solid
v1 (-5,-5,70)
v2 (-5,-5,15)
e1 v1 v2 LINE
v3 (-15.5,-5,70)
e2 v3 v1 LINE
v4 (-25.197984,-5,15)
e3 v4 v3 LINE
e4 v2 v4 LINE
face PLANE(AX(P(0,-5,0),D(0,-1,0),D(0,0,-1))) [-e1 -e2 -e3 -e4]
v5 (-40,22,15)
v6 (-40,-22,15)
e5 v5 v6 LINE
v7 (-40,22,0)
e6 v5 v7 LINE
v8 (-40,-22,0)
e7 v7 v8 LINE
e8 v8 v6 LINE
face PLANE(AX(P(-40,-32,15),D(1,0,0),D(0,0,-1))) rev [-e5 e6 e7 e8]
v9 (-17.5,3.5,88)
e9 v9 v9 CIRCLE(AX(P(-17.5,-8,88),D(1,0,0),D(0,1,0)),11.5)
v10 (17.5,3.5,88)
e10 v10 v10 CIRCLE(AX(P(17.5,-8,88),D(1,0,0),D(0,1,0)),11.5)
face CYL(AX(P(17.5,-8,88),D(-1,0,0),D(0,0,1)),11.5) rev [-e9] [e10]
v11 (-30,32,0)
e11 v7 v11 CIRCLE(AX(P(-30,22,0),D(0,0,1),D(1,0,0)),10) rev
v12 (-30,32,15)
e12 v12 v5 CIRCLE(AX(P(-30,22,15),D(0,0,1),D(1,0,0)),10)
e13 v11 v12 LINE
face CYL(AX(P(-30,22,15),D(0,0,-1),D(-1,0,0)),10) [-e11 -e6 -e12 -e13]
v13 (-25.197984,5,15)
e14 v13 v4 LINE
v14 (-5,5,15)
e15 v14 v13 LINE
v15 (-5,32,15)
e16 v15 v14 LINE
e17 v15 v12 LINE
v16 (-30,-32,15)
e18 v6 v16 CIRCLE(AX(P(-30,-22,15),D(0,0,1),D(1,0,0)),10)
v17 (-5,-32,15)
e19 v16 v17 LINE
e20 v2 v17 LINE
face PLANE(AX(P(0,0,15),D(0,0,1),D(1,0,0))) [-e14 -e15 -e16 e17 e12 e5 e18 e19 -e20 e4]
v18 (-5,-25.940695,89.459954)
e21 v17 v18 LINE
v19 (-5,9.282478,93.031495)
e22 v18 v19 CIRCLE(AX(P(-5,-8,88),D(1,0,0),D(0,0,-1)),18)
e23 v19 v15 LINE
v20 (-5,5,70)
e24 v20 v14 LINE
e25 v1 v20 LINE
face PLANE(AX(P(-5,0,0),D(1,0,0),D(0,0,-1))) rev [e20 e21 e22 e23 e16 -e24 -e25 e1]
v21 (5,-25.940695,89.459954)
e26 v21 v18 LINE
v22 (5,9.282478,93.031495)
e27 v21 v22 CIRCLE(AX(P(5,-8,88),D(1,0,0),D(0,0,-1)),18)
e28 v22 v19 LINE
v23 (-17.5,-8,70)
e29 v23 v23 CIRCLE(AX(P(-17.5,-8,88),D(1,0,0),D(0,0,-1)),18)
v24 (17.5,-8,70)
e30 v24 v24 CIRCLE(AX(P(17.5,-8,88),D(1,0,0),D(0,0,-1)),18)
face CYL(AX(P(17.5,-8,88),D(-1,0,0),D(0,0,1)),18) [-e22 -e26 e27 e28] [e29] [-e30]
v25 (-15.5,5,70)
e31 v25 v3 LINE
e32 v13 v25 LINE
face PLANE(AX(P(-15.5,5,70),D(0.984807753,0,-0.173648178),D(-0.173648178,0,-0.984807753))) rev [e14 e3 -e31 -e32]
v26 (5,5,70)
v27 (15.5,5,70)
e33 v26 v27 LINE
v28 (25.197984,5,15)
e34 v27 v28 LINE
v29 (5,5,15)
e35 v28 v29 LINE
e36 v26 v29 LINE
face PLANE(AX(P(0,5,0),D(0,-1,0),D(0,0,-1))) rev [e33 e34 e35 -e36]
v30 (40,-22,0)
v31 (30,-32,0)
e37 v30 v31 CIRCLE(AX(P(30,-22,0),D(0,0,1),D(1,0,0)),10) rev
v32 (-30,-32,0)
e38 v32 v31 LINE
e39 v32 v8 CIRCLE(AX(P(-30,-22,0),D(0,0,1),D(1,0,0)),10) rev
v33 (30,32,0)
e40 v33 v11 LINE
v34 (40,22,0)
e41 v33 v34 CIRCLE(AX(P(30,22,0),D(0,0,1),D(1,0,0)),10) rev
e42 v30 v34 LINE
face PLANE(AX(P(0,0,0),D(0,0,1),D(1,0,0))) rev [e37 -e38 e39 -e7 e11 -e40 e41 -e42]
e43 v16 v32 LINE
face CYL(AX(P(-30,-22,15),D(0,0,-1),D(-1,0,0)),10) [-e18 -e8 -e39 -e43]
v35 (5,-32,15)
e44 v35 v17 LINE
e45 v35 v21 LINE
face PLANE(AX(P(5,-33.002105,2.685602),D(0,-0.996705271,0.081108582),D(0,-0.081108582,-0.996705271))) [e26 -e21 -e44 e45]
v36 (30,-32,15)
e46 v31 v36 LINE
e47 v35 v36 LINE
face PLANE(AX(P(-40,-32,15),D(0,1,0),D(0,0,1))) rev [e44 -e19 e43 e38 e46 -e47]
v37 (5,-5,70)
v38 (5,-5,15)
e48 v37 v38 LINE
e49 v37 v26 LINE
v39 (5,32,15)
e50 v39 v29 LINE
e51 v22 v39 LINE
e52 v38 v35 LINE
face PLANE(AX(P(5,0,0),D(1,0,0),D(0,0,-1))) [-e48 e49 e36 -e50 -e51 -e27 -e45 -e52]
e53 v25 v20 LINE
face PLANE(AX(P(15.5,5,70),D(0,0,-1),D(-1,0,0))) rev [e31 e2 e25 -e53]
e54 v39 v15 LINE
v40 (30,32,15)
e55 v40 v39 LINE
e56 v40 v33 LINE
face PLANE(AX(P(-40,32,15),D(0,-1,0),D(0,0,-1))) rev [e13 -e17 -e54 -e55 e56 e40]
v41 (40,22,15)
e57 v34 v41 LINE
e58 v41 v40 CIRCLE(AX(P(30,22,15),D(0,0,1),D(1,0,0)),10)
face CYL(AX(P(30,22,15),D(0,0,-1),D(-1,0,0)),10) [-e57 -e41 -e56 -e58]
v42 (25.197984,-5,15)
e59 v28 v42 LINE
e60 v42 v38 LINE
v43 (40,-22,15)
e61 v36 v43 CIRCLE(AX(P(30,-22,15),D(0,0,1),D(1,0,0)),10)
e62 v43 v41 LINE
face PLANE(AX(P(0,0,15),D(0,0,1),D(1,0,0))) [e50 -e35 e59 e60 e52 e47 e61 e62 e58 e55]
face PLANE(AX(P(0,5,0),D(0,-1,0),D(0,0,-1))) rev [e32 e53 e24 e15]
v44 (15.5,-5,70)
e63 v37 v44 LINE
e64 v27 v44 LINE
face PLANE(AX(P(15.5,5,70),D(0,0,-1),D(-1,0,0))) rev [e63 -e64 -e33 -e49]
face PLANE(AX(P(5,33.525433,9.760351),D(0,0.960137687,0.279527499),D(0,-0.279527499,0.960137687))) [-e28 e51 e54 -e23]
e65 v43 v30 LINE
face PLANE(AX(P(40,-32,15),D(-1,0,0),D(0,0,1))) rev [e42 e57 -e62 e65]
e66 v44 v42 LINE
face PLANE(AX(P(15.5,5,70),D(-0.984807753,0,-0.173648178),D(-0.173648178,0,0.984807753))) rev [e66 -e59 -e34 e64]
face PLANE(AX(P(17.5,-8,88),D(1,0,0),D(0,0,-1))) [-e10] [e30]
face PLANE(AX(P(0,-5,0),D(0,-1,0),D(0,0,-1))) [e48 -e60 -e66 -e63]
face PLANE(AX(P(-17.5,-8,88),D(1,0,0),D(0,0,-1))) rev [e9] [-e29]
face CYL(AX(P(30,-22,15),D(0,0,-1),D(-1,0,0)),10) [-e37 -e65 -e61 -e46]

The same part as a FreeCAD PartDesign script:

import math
import FreeCAD as App
import Part
import Sketcher
from FreeCAD import Vector
Q = App.Units.Quantity


def edges_at(feature, points):
    """Names of the edges that pass closest to the given points."""
    edges = feature.Shape.Edges
    near = lambda p: min(range(len(edges)), key=lambda i: edges[i].distToShape(Part.Vertex(*p))[0])
    return sorted({f"Edge{near(p) + 1}" for p in points})

doc = App.newDocument("Part")
body = doc.addObject("PartDesign::Body", "Body")

sketch1 = doc.addObject("Sketcher::SketchObject", "Sketch")
body.addObject(sketch1)
sketch1.AttachmentSupport = (doc.XY_Plane, [""])
sketch1.MapMode = "FlatFace"
sketch1.addGeometry(Part.LineSegment(Vector(-40, -32, 0), Vector(40, -32, 0)), False)
sketch1.addGeometry(Part.LineSegment(Vector(40, -32, 0), Vector(40, 32, 0)), False)
sketch1.addGeometry(Part.LineSegment(Vector(40, 32, 0), Vector(-40, 32, 0)), False)
sketch1.addGeometry(Part.LineSegment(Vector(-40, 32, 0), Vector(-40, -32, 0)), False)
sketch1.addConstraint(Sketcher.Constraint("Coincident", 0, 2, 1, 1))
sketch1.addConstraint(Sketcher.Constraint("Coincident", 1, 2, 2, 1))
sketch1.addConstraint(Sketcher.Constraint("Coincident", 2, 2, 3, 1))
sketch1.addConstraint(Sketcher.Constraint("Coincident", 3, 2, 0, 1))
sketch1.addConstraint(Sketcher.Constraint("Horizontal", 0))
sketch1.addConstraint(Sketcher.Constraint("Vertical", 1))
sketch1.addConstraint(Sketcher.Constraint("Horizontal", 2))
sketch1.addConstraint(Sketcher.Constraint("Vertical", 3))
sketch1.addConstraint(Sketcher.Constraint("Symmetric", 0, 2, 2, 2, -1, 1))
sketch1.addConstraint(Sketcher.Constraint("DistanceX", 0, 1, 0, 2, Q("80 mm")))
sketch1.addConstraint(Sketcher.Constraint("DistanceY", 1, 1, 1, 2, Q("64 mm")))
pad1 = doc.addObject("PartDesign::Pad", "Pad")
body.addObject(pad1)
pad1.Profile = sketch1
pad1.Length = 15
doc.recompute()

fillet = doc.addObject("PartDesign::Fillet", "Fillet")
body.addObject(fillet)
fillet.Base = (pad1, edges_at(pad1, [
    (40, 32, 7.5),
    (40, -32, 7.5),
    (-40, -32, 7.5),
    (-40, 32, 7.5),
]))
fillet.Radius = 10
body2 = doc.addObject("PartDesign::Body", "Body001")

sketch2 = doc.addObject("Sketcher::SketchObject", "Sketch001")
body2.addObject(sketch2)
sketch2.AttachmentSupport = (doc.getObject("YZ_Plane001"), [""])
sketch2.MapMode = "FlatFace"
sketch2.addGeometry(Part.Circle(Vector(-8, 88, 0), Vector(0, 0, 1), 18), False)
sketch2.addGeometry(Part.Circle(Vector(-8, 88, 0), Vector(0, 0, 1), 12), False)
sketch2.addConstraint(Sketcher.Constraint("Coincident", 1, 3, 0, 3))
sketch2.addConstraint(Sketcher.Constraint("Diameter", 0, Q("36 mm")))
sketch2.addConstraint(Sketcher.Constraint("Diameter", 1, Q("23 mm")))
sketch2.addConstraint(Sketcher.Constraint("DistanceX", 0, 3, -1, 1, Q("8 mm")))
sketch2.addConstraint(Sketcher.Constraint("DistanceY", -1, 1, 0, 3, Q("88 mm")))
pad2 = doc.addObject("PartDesign::Pad", "Pad001")
body2.addObject(pad2)
pad2.Profile = sketch2
pad2.Length = 35
pad2.Midplane = True
body.AllowCompound = True
doc.recompute()

boolean = doc.addObject("PartDesign::Boolean", "Boolean")
body.addObject(boolean)
boolean.Type = "Fuse"
boolean.addObjects([body2])

sketch3 = doc.addObject("Sketcher::SketchObject", "Sketch002")
body.addObject(sketch3)
sketch3.AttachmentSupport = (doc.YZ_Plane, [""])
sketch3.MapMode = "FlatFace"
sketch3.addGeometry(Part.LineSegment(Vector(-26, 89, 0), Vector(-32, 15, 0)), False)
sketch3.addGeometry(Part.LineSegment(Vector(-32, 15, 0), Vector(32, 15, 0)), False)
sketch3.addGeometry(Part.LineSegment(Vector(32, 15, 0), Vector(9, 93, 0)), False)
sketch3.addGeometry(Part.ArcOfCircle(Part.Circle(Vector(-8, 88, 0), Vector(0, 0, 1), 18), math.radians(0), math.radians(16.23)), False)
sketch3.addGeometry(Part.ArcOfCircle(Part.Circle(Vector(-8, 88, 0), Vector(0, 0, 1), 18), math.radians(175), math.radians(360)), False)
sketch3.addConstraint(Sketcher.Constraint("Coincident", 0, 2, 1, 1))
sketch3.addConstraint(Sketcher.Constraint("Coincident", 1, 2, 2, 1))
sketch3.addConstraint(Sketcher.Constraint("Tangent", 2, 2, 3, 2))
sketch3.addConstraint(Sketcher.Constraint("Tangent", 3, 1, 4, 2))
sketch3.addConstraint(Sketcher.Constraint("Tangent", 4, 1, 0, 1))
sketch3.addConstraint(Sketcher.Constraint("Horizontal", 1))
sketch3.addConstraint(Sketcher.Constraint("Equal", 3, 4))
sketch3.addConstraint(Sketcher.Constraint("Horizontal", 4, 3, 3, 1))
sketch3.addConstraint(Sketcher.Constraint("Radius", 3, Q("18 mm")))
sketch3.addConstraint(Sketcher.Constraint("DistanceX", 1, 1, 1, 2, Q("64 mm")))
sketch3.addConstraint(Sketcher.Constraint("DistanceX", 3, 3, -1, 1, Q("8 mm")))
sketch3.addConstraint(Sketcher.Constraint("DistanceY", -1, 1, 3, 3, Q("88 mm")))
sketch3.addConstraint(Sketcher.Constraint("DistanceX", 0, 2, -1, 1, Q("32 mm")))
sketch3.addConstraint(Sketcher.Constraint("DistanceY", -1, 1, 0, 2, Q("15 mm")))
pad3 = doc.addObject("PartDesign::Pad", "Pad002")
body.addObject(pad3)
pad3.Profile = sketch3
pad3.Length = 10
pad3.Midplane = True

sketch4 = doc.addObject("Sketcher::SketchObject", "Sketch003")
body.addObject(sketch4)
sketch4.AttachmentSupport = (doc.XZ_Plane, [""])
sketch4.MapMode = "FlatFace"
sketch4.addGeometry(Part.LineSegment(Vector(16, 70, 0), Vector(25, 15, 0)), False)
sketch4.addGeometry(Part.LineSegment(Vector(25, 15, 0), Vector(-25, 15, 0)), False)
sketch4.addGeometry(Part.LineSegment(Vector(-25, 15, 0), Vector(-16, 70, 0)), False)
sketch4.addGeometry(Part.LineSegment(Vector(-16, 70, 0), Vector(16, 70, 0)), False)
sketch4.addConstraint(Sketcher.Constraint("Coincident", 0, 2, 1, 1))
sketch4.addConstraint(Sketcher.Constraint("Coincident", 1, 2, 2, 1))
sketch4.addConstraint(Sketcher.Constraint("Coincident", 2, 2, 3, 1))
sketch4.addConstraint(Sketcher.Constraint("Coincident", 3, 2, 0, 1))
sketch4.addConstraint(Sketcher.Constraint("Horizontal", 1))
sketch4.addConstraint(Sketcher.Constraint("Horizontal", 3))
sketch4.addConstraint(Sketcher.Constraint("Equal", 0, 2))
sketch4.addConstraint(Sketcher.Constraint("DistanceX", 3, 1, 3, 2, Q("31 mm")))
sketch4.addConstraint(Sketcher.Constraint("Angle", 0, Q("-80 deg")))
sketch4.addConstraint(Sketcher.Constraint("DistanceY", -1, 1, 0, 2, Q("15 mm")))
sketch4.addConstraint(Sketcher.Constraint("DistanceY", -1, 1, 2, 2, Q("70 mm")))
sketch4.addConstraint(Sketcher.Constraint("DistanceX", 2, 2, -1, 1, Q("15.5 mm")))
pad4 = doc.addObject("PartDesign::Pad", "Pad003")
body.addObject(pad4)
pad4.Profile = sketch4
pad4.Length = 10
pad4.Midplane = True

doc.recompute()
